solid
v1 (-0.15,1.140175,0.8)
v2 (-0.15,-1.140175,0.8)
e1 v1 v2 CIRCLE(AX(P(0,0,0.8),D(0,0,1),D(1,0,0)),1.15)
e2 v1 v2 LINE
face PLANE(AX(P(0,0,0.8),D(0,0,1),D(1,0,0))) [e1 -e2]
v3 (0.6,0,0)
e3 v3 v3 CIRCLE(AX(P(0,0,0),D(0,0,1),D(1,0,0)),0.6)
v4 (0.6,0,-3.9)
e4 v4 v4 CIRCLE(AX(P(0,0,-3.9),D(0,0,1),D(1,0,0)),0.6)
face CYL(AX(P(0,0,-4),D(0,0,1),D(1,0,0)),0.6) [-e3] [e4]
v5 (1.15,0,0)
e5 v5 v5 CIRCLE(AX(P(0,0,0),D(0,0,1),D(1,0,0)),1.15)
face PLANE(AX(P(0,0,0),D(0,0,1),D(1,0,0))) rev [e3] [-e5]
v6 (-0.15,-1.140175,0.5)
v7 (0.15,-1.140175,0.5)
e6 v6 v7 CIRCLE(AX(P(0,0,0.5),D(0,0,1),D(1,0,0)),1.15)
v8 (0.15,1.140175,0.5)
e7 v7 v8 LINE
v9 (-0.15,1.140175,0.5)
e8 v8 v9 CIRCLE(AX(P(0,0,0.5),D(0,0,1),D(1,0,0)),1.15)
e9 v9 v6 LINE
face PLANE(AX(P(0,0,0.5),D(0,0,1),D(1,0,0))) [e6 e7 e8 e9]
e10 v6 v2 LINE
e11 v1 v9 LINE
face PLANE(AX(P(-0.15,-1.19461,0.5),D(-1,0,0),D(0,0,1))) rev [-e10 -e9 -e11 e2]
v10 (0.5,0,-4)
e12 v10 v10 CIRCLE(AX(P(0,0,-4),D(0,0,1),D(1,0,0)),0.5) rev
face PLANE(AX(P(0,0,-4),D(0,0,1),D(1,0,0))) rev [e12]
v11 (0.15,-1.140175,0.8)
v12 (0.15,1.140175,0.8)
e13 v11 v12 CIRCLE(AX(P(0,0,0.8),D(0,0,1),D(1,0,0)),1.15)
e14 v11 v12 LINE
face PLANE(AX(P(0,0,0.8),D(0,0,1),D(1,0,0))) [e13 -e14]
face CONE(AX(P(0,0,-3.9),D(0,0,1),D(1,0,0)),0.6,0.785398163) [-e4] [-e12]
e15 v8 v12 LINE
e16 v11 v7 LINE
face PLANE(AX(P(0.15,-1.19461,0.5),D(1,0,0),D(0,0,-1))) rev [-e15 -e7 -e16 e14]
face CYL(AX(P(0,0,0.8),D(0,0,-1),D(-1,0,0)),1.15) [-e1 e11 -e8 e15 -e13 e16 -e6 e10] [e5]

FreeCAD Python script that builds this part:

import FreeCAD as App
import Part
import Sketcher

V = App.Vector


def edges_at(feature, points):
    """Names of the edges that pass closest to the given points."""
    edges = feature.Shape.Edges
    near = lambda p: min(range(len(edges)), key=lambda i: edges[i].distToShape(Part.Vertex(*p))[0])
    return sorted({f"Edge{near(p) + 1}" for p in points})


def add_polygon(sketch, points):
    """Adds a closed chain of lines whose ends are joined by coincident constraints."""
    first, n = sketch.GeometryCount, len(points)
    for a, b in zip(points, points[1:] + points[:1]):
        sketch.addGeometry(Part.LineSegment(App.Vector(*a, 0), App.Vector(*b, 0)), False)
    for i in range(n):
        sketch.addConstraint(Sketcher.Constraint("Coincident", first + i, 2, first + (i + 1) % n, 1))

doc = App.newDocument("Part")
params = doc.addObject("Spreadsheet::Sheet", "Params")
for row, (alias, value) in enumerate([
    ("sketch1_diameter", "2.3 mm"),
    ("pad1_length", "0.8 mm"),
    ("sketch2_diameter", "1.2 mm"),
    ("pad2_length", "4 mm"),
    ("chamfer_size", "0.1 mm"),
    ("sketch3_width", "0.3 mm"),
    ("pocket1_length", "0.3 mm"),
], start=1):
    params.set(f"A{row}", alias)
    params.set(f"B{row}", "=" + value)
    params.setAlias(f"B{row}", alias)

body = doc.addObject("PartDesign::Body", "Body")

sketch1 = doc.addObject("Sketcher::SketchObject", "Sketch")
body.addObject(sketch1)
sketch1.AttachmentSupport = (doc.XY_Plane, [""])
sketch1.MapMode = "FlatFace"
sketch1.addGeometry(Part.Circle(V(0, 0, 0), V(0, 0, 1), 1.1), False)
sketch1.addConstraint([
    Sketcher.Constraint("Coincident", 0, 3, -1, 1),
    Sketcher.Constraint("Diameter", 0, 2.3),
])
sketch1.setExpression("Constraints[1]", "Params.sketch1_diameter")
pad1 = doc.addObject("PartDesign::Pad", "Pad")
body.addObject(pad1)
pad1.Profile = sketch1
pad1.setExpression("Length", "Params.pad1_length")

sketch2 = doc.addObject("Sketcher::SketchObject", "Sketch001")
body.addObject(sketch2)
sketch2.AttachmentSupport = (doc.XY_Plane, [""])
sketch2.MapMode = "FlatFace"
sketch2.addGeometry(Part.Circle(V(0, 0, 0), V(0, 0, 1), 0.6), False)
sketch2.addConstraint([
    Sketcher.Constraint("Coincident", 0, 3, -1, 1),
    Sketcher.Constraint("Diameter", 0, 1.2),
])
sketch2.setExpression("Constraints[1]", "Params.sketch2_diameter")
pad2 = doc.addObject("PartDesign::Pad", "Pad001")
body.addObject(pad2)
pad2.Profile = sketch2
pad2.setExpression("Length", "Params.pad2_length")
pad2.Reversed = True
doc.recompute()

chamfer = doc.addObject("PartDesign::Chamfer", "Chamfer")
body.addObject(chamfer)
chamfer.Base = (pad2, edges_at(pad2, [(-0.6, 0, -4)]))
chamfer.setExpression("Size", "Params.chamfer_size")

sketch3 = doc.addObject("Sketcher::SketchObject", "Sketch002")
body.addObject(sketch3)
sketch3.AttachmentSupport = (doc.XY_Plane, [""])
sketch3.MapMode = "FlatFace"
sketch3.AttachmentOffset = App.Placement(V(0, 0, 0.8), App.Rotation())
add_polygon(sketch3, [(-0.15, 1.19), (-0.15, -1.19), (0.15, -1.19), (0.15, 1.19)])
sketch3.addConstraint([
    Sketcher.Constraint("Vertical", 0),
    Sketcher.Constraint("Horizontal", 1),
    Sketcher.Constraint("Vertical", 2),
    Sketcher.Constraint("Horizontal", 3),
    Sketcher.Constraint("Symmetric", 0, 2, 2, 2, -1, 1),
    Sketcher.Constraint("DistanceX", 1, 1, 1, 2, 0.3),
    Sketcher.Constraint("DistanceY", 0, 2, 0, 1, 2.38922),
])
sketch3.setExpression("Constraints[9]", "Params.sketch3_width")
pocket1 = doc.addObject("PartDesign::Pocket", "Pocket")
body.addObject(pocket1)
pocket1.Profile = sketch3
pocket1.setExpression("Length", "Params.pocket1_length")

doc.recompute()
